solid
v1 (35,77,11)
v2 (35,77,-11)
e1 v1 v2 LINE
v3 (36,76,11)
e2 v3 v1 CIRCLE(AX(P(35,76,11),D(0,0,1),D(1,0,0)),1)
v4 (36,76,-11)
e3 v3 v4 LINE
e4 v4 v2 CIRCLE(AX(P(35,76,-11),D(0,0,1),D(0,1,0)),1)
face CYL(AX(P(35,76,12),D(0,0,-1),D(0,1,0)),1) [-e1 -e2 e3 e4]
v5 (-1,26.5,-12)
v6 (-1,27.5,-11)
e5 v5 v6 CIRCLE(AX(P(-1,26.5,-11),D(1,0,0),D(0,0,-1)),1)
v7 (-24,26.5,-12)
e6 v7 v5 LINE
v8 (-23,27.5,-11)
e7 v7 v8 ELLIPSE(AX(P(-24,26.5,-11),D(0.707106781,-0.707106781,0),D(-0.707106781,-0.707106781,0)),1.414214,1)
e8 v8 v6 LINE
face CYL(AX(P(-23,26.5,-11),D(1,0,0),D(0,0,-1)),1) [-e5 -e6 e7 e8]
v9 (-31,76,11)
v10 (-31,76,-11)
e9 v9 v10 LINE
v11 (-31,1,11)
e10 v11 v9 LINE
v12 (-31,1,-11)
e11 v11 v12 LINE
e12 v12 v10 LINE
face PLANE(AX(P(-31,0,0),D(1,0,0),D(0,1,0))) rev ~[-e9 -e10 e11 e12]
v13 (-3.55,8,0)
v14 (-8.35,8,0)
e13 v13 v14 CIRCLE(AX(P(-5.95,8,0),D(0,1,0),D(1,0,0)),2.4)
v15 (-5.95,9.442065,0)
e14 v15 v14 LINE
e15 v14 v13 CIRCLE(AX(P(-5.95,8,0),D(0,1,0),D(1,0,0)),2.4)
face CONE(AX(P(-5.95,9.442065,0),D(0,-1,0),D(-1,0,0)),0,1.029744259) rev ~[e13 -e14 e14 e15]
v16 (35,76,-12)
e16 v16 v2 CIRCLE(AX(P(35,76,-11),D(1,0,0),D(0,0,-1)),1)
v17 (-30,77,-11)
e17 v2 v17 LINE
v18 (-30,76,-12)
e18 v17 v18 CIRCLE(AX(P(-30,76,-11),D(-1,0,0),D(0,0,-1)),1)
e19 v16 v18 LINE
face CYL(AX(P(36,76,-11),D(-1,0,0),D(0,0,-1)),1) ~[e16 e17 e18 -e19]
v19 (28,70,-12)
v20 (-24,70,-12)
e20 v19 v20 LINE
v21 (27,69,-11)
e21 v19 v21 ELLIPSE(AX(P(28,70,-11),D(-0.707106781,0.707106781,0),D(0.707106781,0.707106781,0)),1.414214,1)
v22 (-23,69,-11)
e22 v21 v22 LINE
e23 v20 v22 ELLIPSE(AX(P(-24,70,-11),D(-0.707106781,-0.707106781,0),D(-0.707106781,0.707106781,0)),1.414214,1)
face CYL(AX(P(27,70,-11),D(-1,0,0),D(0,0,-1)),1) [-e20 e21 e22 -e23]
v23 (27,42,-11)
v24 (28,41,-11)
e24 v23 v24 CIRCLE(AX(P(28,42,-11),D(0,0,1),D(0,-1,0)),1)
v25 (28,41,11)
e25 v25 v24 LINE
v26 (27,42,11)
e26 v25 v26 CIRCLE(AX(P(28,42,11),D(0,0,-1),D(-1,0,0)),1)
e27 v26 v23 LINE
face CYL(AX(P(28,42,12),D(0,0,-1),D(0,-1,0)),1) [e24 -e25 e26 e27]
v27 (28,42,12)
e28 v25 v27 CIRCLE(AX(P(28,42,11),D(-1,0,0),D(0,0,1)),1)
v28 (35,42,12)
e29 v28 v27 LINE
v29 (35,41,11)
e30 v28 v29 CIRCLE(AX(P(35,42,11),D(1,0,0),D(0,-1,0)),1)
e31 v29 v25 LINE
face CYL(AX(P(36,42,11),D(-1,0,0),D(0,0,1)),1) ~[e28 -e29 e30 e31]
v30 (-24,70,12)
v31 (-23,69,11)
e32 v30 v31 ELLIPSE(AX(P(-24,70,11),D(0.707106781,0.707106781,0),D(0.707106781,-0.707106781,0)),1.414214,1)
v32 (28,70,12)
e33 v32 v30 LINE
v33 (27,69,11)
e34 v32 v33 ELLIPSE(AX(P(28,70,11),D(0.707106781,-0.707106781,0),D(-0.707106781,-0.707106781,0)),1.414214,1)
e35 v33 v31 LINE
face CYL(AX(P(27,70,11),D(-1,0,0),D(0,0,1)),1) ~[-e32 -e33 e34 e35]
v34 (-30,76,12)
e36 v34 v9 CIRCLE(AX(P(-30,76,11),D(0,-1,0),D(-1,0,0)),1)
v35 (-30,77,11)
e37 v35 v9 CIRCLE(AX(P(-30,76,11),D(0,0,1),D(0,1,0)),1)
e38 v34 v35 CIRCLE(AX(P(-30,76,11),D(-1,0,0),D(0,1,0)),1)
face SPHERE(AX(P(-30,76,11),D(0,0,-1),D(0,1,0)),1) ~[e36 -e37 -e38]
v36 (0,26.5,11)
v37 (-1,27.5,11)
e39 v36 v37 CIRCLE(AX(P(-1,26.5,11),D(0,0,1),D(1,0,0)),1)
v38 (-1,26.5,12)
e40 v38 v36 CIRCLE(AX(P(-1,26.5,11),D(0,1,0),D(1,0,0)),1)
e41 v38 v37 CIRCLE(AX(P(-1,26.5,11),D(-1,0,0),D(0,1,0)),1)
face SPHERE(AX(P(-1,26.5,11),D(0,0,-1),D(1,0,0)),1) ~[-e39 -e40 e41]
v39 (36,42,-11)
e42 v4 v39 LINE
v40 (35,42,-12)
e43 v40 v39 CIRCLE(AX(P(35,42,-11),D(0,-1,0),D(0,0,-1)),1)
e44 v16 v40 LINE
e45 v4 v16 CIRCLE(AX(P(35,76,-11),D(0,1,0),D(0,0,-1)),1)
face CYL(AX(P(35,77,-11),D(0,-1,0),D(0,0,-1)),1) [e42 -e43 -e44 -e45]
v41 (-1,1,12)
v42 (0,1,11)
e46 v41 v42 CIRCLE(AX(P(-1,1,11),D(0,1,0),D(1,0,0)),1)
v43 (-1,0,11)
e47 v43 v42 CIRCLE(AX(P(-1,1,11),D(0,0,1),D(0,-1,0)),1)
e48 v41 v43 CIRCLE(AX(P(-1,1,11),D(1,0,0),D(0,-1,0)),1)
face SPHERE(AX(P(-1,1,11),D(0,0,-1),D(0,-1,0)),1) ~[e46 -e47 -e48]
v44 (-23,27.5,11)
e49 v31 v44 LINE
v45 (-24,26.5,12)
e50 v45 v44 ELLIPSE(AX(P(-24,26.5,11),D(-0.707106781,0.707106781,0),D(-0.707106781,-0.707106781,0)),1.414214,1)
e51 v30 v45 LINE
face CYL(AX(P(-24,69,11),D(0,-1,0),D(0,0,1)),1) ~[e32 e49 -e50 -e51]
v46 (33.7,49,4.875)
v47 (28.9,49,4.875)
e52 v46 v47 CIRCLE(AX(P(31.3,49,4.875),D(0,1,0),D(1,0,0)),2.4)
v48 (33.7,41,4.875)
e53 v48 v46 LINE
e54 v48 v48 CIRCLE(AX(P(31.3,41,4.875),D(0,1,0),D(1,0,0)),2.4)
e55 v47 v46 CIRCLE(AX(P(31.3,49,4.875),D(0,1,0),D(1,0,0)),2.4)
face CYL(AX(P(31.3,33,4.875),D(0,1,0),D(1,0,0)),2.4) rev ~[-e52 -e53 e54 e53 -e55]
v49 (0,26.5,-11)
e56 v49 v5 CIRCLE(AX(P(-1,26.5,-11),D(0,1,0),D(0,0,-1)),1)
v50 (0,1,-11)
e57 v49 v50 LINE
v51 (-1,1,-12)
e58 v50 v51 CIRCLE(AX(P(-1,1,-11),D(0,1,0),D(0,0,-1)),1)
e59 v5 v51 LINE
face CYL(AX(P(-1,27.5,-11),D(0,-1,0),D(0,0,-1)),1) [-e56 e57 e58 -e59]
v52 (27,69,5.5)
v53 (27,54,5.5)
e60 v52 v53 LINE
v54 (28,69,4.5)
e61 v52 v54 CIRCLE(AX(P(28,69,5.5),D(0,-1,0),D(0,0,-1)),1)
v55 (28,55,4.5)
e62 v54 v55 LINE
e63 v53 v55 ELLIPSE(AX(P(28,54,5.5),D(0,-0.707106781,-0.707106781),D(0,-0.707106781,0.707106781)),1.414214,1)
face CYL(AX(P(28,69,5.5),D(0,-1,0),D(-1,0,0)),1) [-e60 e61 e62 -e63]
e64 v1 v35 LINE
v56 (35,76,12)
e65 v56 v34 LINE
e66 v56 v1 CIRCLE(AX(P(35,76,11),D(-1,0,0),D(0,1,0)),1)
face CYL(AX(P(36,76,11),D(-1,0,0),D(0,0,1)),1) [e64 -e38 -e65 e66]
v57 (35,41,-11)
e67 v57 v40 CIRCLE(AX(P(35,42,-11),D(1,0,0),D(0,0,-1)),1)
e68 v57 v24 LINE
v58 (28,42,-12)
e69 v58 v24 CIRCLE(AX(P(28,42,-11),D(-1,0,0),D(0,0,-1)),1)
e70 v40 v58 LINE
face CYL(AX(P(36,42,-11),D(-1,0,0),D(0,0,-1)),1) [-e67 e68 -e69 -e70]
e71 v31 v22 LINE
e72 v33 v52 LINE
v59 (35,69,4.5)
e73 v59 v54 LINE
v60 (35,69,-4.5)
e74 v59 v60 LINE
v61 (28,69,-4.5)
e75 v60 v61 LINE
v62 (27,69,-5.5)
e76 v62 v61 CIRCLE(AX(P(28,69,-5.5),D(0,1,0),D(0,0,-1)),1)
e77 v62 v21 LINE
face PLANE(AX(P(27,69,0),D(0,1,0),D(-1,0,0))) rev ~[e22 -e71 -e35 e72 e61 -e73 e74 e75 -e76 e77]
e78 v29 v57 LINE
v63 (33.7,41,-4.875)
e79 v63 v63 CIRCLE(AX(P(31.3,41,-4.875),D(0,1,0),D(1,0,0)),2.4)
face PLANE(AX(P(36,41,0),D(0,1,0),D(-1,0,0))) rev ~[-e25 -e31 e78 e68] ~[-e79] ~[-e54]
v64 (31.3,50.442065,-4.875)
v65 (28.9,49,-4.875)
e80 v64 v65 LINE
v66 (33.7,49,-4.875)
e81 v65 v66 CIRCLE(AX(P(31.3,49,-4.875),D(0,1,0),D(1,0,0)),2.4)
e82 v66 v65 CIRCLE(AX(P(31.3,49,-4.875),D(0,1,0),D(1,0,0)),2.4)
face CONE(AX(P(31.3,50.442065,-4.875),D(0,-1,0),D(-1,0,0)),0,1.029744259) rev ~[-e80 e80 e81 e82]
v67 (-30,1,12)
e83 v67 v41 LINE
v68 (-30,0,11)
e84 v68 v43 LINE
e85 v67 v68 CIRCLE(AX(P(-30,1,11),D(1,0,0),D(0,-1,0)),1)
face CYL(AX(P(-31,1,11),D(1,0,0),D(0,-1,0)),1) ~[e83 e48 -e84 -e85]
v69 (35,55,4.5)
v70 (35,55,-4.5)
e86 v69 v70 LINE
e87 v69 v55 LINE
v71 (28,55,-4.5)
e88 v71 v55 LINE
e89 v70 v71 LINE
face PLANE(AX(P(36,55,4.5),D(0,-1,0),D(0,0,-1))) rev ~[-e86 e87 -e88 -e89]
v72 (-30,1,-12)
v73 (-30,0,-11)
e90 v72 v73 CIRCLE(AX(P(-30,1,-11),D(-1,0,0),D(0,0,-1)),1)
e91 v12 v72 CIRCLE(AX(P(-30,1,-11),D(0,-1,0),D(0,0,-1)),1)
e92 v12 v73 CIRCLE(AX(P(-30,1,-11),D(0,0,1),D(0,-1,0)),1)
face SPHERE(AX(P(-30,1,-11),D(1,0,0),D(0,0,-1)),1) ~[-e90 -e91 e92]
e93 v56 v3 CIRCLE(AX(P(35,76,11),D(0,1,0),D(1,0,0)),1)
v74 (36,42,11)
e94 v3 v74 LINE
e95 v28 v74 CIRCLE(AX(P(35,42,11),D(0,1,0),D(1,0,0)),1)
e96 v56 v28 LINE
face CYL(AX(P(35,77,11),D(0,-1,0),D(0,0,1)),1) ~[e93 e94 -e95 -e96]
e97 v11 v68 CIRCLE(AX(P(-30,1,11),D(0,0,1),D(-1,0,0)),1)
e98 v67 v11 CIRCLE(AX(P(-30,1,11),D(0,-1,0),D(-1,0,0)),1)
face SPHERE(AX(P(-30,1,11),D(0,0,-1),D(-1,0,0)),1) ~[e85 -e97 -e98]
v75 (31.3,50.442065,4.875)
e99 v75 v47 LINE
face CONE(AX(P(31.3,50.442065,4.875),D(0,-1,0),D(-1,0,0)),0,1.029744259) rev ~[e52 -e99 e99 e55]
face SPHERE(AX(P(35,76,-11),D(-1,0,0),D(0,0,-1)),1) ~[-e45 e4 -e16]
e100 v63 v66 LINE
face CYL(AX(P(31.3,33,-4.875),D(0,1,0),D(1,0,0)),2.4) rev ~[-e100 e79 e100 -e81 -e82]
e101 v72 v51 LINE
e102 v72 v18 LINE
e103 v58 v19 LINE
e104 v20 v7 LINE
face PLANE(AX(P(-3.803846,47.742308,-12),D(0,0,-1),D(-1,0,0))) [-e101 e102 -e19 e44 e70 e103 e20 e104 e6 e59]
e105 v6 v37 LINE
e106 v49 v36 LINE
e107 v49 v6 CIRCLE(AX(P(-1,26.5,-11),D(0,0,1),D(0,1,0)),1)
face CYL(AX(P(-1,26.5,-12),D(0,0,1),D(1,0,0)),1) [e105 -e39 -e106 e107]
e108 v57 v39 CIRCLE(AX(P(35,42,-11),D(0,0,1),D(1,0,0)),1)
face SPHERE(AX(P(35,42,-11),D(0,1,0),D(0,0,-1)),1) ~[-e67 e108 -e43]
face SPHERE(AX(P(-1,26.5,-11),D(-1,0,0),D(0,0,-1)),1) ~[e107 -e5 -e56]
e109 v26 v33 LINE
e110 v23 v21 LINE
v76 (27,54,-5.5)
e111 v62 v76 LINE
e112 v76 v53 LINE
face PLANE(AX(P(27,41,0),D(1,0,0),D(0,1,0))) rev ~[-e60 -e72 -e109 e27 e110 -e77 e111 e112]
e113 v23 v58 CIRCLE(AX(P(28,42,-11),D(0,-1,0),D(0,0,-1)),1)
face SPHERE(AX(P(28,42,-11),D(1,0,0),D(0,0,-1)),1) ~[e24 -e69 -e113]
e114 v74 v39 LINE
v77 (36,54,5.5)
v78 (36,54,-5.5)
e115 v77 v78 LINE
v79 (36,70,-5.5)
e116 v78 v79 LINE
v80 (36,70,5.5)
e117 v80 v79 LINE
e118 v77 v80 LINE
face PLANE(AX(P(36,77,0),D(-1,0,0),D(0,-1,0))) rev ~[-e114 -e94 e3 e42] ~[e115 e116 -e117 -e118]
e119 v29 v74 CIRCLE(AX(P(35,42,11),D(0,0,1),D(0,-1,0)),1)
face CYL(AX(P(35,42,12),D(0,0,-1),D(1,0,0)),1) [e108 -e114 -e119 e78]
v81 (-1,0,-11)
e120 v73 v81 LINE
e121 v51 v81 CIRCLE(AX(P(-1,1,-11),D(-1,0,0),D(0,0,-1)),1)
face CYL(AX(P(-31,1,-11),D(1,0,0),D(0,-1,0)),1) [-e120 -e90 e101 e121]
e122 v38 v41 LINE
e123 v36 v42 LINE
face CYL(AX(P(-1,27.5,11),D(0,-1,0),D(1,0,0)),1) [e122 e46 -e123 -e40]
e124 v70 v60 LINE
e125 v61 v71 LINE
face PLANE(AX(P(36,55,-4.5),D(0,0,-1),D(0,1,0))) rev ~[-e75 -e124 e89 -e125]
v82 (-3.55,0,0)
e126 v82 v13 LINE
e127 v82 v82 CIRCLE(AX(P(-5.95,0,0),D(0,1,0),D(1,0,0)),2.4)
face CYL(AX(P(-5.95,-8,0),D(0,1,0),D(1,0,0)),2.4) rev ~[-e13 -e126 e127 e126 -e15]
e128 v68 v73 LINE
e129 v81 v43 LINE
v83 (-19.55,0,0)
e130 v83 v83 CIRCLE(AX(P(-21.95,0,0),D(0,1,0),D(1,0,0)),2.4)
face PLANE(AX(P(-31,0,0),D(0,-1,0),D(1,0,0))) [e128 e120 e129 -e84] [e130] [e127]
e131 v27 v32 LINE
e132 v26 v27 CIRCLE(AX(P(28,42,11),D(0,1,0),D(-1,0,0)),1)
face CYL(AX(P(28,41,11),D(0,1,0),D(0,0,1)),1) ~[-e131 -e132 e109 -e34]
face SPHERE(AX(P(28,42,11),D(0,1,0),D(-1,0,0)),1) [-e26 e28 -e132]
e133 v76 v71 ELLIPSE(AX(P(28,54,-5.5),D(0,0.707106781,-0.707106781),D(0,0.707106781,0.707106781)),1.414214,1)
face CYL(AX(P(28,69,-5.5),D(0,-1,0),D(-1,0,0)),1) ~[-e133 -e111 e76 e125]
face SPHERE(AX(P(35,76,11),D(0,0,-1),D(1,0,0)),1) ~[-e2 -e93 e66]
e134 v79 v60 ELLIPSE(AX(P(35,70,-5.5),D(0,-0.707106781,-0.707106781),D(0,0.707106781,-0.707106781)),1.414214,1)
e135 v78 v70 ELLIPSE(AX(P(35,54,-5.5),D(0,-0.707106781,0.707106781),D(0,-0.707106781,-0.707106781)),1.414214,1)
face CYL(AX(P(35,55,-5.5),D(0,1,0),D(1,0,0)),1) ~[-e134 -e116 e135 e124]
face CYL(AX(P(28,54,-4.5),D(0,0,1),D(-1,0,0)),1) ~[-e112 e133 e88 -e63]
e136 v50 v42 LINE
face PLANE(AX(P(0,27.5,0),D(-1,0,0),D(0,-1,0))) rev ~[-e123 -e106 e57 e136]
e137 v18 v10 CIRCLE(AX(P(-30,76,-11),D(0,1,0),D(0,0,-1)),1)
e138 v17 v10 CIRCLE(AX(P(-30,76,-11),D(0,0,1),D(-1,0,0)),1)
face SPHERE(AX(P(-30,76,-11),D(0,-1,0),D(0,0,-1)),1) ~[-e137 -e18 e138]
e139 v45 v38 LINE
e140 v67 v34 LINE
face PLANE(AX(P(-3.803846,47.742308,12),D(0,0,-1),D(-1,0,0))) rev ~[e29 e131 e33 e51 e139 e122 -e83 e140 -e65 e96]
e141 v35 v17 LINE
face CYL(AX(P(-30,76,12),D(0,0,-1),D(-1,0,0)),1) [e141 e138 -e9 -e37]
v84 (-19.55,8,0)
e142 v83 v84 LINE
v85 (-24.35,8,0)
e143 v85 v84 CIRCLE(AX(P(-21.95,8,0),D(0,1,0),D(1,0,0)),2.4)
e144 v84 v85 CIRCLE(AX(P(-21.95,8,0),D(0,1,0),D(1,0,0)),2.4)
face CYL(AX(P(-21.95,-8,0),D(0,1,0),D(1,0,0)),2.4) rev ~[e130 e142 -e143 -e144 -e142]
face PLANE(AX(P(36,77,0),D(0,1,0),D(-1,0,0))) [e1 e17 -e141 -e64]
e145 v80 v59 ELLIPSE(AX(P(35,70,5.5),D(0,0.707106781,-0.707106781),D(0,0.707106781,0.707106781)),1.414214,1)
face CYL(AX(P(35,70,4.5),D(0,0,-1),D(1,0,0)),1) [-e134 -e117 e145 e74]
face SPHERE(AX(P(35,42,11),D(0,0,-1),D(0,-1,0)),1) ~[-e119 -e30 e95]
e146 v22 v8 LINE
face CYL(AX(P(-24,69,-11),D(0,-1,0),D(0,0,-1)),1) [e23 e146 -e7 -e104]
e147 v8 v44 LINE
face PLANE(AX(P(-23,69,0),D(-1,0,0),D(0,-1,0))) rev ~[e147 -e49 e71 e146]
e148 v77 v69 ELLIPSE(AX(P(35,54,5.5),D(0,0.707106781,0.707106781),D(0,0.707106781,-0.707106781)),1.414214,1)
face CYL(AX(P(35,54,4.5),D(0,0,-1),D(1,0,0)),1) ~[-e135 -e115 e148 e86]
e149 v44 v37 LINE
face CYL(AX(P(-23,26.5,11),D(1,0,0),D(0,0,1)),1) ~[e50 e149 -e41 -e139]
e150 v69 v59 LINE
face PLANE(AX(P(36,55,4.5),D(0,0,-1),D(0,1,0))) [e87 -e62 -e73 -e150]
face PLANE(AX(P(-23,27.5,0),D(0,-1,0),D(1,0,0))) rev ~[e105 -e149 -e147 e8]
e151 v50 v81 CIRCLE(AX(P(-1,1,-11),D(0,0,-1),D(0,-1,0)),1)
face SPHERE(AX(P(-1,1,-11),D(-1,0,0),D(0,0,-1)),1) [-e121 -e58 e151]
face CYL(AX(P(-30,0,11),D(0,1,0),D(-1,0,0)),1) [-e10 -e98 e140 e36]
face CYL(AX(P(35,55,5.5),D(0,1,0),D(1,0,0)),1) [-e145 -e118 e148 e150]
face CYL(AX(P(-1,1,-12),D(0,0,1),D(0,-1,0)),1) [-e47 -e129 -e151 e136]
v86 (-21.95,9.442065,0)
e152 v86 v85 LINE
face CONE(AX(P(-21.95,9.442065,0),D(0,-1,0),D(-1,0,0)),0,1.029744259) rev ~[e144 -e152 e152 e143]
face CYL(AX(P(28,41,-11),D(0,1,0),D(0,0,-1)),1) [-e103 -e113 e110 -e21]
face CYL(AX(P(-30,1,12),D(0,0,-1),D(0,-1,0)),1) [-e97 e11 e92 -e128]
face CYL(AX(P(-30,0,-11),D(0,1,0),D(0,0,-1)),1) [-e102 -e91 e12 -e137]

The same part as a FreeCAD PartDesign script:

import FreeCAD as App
import Part
import Sketcher
from FreeCAD import Vector


def edges_at(feature, points):
    """Names of the edges that pass closest to the given points."""
    edges = feature.Shape.Edges
    near = lambda p: min(range(len(edges)), key=lambda i: edges[i].distToShape(Part.Vertex(*p))[0])
    return sorted({f"Edge{near(p) + 1}" for p in points})

doc = App.newDocument("Part")
body = doc.addObject("PartDesign::Body", "Body")

# Sketch on XY plane
sketch1 = doc.addObject("Sketcher::SketchObject", "Sketch")
body.addObject(sketch1)
sketch1.AttachmentSupport = (doc.XY_Plane, [""])
sketch1.MapMode = "FlatFace"
sketch1.addGeometry([
    Part.LineSegment(Vector(-31, 0, 0), Vector(0, 0, 0)),  # 0
    Part.LineSegment(Vector(0, 0, 0), Vector(0, 28, 0)),  # 1
    Part.LineSegment(Vector(0, 28, 0), Vector(-23, 28, 0)),  # 2
    Part.LineSegment(Vector(-23, 28, 0), Vector(-23, 69, 0)),  # 3
    Part.LineSegment(Vector(-23, 69, 0), Vector(27, 69, 0)),  # 4
    Part.LineSegment(Vector(27, 69, 0), Vector(27, 41, 0)),  # 5
    Part.LineSegment(Vector(27, 41, 0), Vector(36, 41, 0)),  # 6
    Part.LineSegment(Vector(36, 41, 0), Vector(36, 77, 0)),  # 7
    Part.LineSegment(Vector(36, 77, 0), Vector(-31, 77, 0)),  # 8
    Part.LineSegment(Vector(-31, 77, 0), Vector(-31, 0, 0)),  # 9
], False)
sketch1.addConstraint([
    Sketcher.Constraint("Coincident", 0, 2, 1, 1),
    Sketcher.Constraint("Coincident", 1, 2, 2, 1),
    Sketcher.Constraint("Coincident", 2, 2, 3, 1),
    Sketcher.Constraint("Coincident", 3, 2, 4, 1),
    Sketcher.Constraint("Coincident", 4, 2, 5, 1),
    Sketcher.Constraint("Coincident", 5, 2, 6, 1),
    Sketcher.Constraint("Coincident", 6, 2, 7, 1),
    Sketcher.Constraint("Coincident", 7, 2, 8, 1),
    Sketcher.Constraint("Coincident", 8, 2, 9, 1),
    Sketcher.Constraint("Coincident", 9, 2, 0, 1),
    Sketcher.Constraint("Horizontal", 0),
    Sketcher.Constraint("Vertical", 1),
    Sketcher.Constraint("Horizontal", 2),
    Sketcher.Constraint("Vertical", 3),
    Sketcher.Constraint("Horizontal", 4),
    Sketcher.Constraint("Vertical", 5),
    Sketcher.Constraint("Horizontal", 6),
    Sketcher.Constraint("Vertical", 7),
    Sketcher.Constraint("Horizontal", 8),
    Sketcher.Constraint("Vertical", 9),
    Sketcher.Constraint("Coincident", 0, 2, -1, 1),
    Sketcher.Constraint("DistanceX", 0, 1, 0, 2, 31.0),
    Sketcher.Constraint("DistanceX", 2, 2, 2, 1, 23.0),
    Sketcher.Constraint("DistanceX", 4, 1, 4, 2, 50.0),
    Sketcher.Constraint("DistanceX", 6, 1, 6, 2, 9.0),
    Sketcher.Constraint("DistanceY", 5, 2, 5, 1, 28.0),
    Sketcher.Constraint("DistanceY", 7, 1, 7, 2, 36.0),
    Sketcher.Constraint("DistanceY", 9, 2, 9, 1, 77.0),
    Sketcher.Constraint("DistanceY", 1, 1, 1, 2, 27.5),
])
pad1 = doc.addObject("PartDesign::Pad", "Pad")
body.addObject(pad1)
pad1.Profile = sketch1
pad1.Length = 24
pad1.Midplane = True

# Sketch on XZ plane
sketch2 = doc.addObject("Sketcher::SketchObject", "Sketch001")
body.addObject(sketch2)
sketch2.AttachmentSupport = (doc.XZ_Plane, [""])
sketch2.MapMode = "FlatFace"
sketch2.AttachmentOffset = App.Placement(Vector(0, 0, -41), App.Rotation())
sketch2.addGeometry([
    Part.Circle(Vector(31.3, -4.9, 0), Vector(0, 0, 1), 2.4),
    Part.Circle(Vector(31.3, 4.9, 0), Vector(0, 0, 1), 2.4),
], False)
sketch2.addConstraint([
    Sketcher.Constraint("Equal", 0, 1),
    Sketcher.Constraint("Symmetric", 0, 3, 1, 3, -1),
    Sketcher.Constraint("Diameter", 0, 4.8),
    Sketcher.Constraint("DistanceX", -1, 1, 0, 3, 31.3),
    Sketcher.Constraint("DistanceY", 0, 3, 1, 3, 9.75),
])
doc.recompute()
hole = doc.addObject("PartDesign::Hole", "Hole")
body.addObject(hole)
hole.Profile = sketch2
hole.ThreadType = "None"
hole.Diameter = 4.8
hole.DepthType = "Dimension"
hole.Depth = 8
hole.DrillPoint = "Angled"
hole.DrillPointAngle = 118

# Sketch on XZ plane
sketch3 = doc.addObject("Sketcher::SketchObject", "Sketch002")
body.addObject(sketch3)
sketch3.AttachmentSupport = (doc.XZ_Plane, [""])
sketch3.MapMode = "FlatFace"
sketch3.addGeometry([
    Part.Circle(Vector(-6, 0, 0), Vector(0, 0, 1), 2.4),
    Part.Circle(Vector(-21.9, 0, 0), Vector(0, 0, 1), 2.4),
], False)
sketch3.addConstraint([
    Sketcher.Constraint("Equal", 0, 1),
    Sketcher.Constraint("PointOnObject", 0, 3, -1),
    Sketcher.Constraint("PointOnObject", 1, 3, -1),
    Sketcher.Constraint("Diameter", 0, 4.8),
    Sketcher.Constraint("DistanceX", 1, 3, 0, 3, 16.0),
    Sketcher.Constraint("DistanceX", 0, 3, -1, 1, 5.95),
])
doc.recompute()
hole2 = doc.addObject("PartDesign::Hole", "Hole001")
body.addObject(hole2)
hole2.Profile = sketch3
hole2.ThreadType = "None"
hole2.Diameter = 4.8
hole2.DepthType = "Dimension"
hole2.Depth = 8
hole2.DrillPoint = "Angled"
hole2.DrillPointAngle = 118

# Sketch on YZ plane
sketch4 = doc.addObject("Sketcher::SketchObject", "Sketch003")
body.addObject(sketch4)
sketch4.AttachmentSupport = (doc.YZ_Plane, [""])
sketch4.MapMode = "FlatFace"
sketch4.AttachmentOffset = App.Placement(Vector(0, 0, 36), App.Rotation())
sketch4.addGeometry([
    Part.LineSegment(Vector(69, 4, 0), Vector(55, 4, 0)),
    Part.LineSegment(Vector(55, 4, 0), Vector(55, -4, 0)),
    Part.LineSegment(Vector(55, -4, 0), Vector(69, -4, 0)),
    Part.LineSegment(Vector(69, -4, 0), Vector(69, 4, 0)),
], False)
sketch4.addConstraint([
    Sketcher.Constraint("Coincident", 0, 2, 1, 1),
    Sketcher.Constraint("Coincident", 1, 2, 2, 1),
    Sketcher.Constraint("Coincident", 2, 2, 3, 1),
    Sketcher.Constraint("Coincident", 3, 2, 0, 1),
    Sketcher.Constraint("Horizontal", 0),
    Sketcher.Constraint("Vertical", 1),
    Sketcher.Constraint("Horizontal", 2),
    Sketcher.Constraint("Vertical", 3),
    Sketcher.Constraint("DistanceX", 0, 2, 0, 1, 14.0),
    Sketcher.Constraint("DistanceY", 1, 2, 1, 1, 9.0),
    Sketcher.Constraint("DistanceX", -1, 1, 0, 2, 55.0),
    Sketcher.Constraint("DistanceY", -1, 1, 0, 2, 4.5),
])
pocket1 = doc.addObject("PartDesign::Pocket", "Pocket")
body.addObject(pocket1)
pocket1.Profile = sketch4
pocket1.Type = "UpToFirst"
doc.recompute()

fillet = doc.addObject("PartDesign::Fillet", "Fillet")
body.addObject(fillet)
fillet.Base = (pocket1, edges_at(pocket1, [
    (-15.5, 0, -12),
    (-23, 48.25, 12),
    (-31, 38.5, -12),
    (2.5, 77, -12),
    (36, 59, -12),
    (31.5, 41, -12),
    (27, 55, -12),
    (2, 69, -12),
    (-23, 48.25, -12),
    (-11.5, 27.5, -12),
    (0, 13.75, -12),
    (2, 69, 12),
    (0, 0, 0),
    (-31, 0, 0),
    (27, 55, 12),
    (-31, 77, 0),
    (36, 77, 0),
    (36, 41, 0),
    (27, 41, 0),
    (0, 27.5, 0),
    (31.5, 41, 12),
    (36, 59, 12),
    (2.5, 77, 12),
    (-31, 38.5, 12),
    (-15.5, 0, 12),
    (0, 13.75, 12),
    (36, 62, 4.5),
    (36, 55, 0),
    (36, 62, -4.5),
    (36, 69, 0),
    (27, 55, 0),
    (27, 62, 4.5),
    (27, 62, -4.5),
    (-11.5, 27.5, 12),
]))
fillet.Radius = 1

doc.recompute()
